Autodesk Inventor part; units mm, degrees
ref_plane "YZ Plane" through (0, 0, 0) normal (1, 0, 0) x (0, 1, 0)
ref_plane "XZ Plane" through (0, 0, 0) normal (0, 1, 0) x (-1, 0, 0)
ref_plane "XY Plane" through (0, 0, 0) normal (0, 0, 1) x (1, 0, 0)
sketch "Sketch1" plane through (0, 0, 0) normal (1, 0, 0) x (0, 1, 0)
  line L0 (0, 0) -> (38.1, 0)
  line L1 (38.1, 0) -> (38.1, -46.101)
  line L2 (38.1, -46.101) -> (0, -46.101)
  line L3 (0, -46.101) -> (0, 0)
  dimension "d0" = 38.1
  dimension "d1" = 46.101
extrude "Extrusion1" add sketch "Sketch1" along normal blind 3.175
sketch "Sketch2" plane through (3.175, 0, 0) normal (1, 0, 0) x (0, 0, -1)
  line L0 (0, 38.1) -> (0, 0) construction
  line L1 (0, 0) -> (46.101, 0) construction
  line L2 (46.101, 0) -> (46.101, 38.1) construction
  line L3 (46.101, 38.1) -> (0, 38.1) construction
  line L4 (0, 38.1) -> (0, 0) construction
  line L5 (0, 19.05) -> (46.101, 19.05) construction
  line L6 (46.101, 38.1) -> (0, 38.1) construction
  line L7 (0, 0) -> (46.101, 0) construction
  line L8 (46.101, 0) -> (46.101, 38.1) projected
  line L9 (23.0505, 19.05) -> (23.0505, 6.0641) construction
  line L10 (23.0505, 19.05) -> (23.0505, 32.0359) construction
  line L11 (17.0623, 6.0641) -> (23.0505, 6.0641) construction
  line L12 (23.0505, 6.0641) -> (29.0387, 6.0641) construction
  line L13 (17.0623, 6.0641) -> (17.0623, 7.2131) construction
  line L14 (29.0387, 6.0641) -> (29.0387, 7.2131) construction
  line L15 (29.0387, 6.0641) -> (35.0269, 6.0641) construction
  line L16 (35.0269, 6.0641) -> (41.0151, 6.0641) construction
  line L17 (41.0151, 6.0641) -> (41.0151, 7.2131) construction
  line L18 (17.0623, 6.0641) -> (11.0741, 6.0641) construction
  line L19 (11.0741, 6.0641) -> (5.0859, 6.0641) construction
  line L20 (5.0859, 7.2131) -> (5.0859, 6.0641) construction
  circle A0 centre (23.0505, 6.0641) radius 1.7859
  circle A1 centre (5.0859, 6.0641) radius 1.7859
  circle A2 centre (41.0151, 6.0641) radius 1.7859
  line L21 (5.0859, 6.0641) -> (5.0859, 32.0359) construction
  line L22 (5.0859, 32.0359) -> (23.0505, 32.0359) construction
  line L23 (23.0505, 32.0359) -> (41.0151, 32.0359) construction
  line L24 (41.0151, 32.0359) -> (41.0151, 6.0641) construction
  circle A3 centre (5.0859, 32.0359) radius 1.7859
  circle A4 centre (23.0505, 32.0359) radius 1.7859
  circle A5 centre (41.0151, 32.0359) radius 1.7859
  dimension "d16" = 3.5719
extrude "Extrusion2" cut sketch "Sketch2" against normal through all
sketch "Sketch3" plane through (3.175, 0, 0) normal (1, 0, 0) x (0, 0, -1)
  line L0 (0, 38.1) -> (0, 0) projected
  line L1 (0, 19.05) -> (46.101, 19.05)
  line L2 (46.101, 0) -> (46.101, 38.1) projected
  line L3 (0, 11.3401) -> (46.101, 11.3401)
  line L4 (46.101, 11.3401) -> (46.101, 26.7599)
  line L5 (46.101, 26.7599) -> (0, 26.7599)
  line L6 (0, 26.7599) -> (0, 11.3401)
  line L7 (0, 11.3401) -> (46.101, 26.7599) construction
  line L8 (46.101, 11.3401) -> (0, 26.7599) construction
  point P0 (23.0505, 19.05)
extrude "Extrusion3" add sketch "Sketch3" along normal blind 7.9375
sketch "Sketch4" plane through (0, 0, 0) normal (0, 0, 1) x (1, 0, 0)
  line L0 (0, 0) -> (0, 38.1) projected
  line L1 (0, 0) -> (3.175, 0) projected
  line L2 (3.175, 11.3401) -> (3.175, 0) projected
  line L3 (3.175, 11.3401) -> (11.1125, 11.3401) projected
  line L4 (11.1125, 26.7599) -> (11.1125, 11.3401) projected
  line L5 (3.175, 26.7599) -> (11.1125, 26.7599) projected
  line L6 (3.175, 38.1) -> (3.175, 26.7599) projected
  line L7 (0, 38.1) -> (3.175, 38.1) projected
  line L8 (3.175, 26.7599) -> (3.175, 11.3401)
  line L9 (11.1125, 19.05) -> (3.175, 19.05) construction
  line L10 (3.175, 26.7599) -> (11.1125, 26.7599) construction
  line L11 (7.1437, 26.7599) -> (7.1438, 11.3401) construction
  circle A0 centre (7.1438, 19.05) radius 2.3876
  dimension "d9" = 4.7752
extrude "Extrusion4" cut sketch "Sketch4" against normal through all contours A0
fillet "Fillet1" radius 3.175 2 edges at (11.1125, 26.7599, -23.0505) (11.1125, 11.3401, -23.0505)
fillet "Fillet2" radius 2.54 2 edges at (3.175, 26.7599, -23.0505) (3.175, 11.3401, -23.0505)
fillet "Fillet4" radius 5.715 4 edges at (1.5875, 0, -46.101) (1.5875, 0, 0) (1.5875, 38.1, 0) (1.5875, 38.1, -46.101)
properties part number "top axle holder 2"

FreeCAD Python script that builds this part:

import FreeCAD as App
import Part
import Sketcher
Q = App.Units.Quantity


def edges_at(feature, points):
    """Names of the edges that pass closest to the given points."""
    edges = feature.Shape.Edges
    near = lambda p: min(range(len(edges)), key=lambda i: edges[i].distToShape(Part.Vertex(*p))[0])
    return sorted({f"Edge{near(p) + 1}" for p in points})


def add_polygon(sketch, points):
    """Adds a closed chain of lines whose ends are joined by coincident constraints."""
    first, n = sketch.GeometryCount, len(points)
    for a, b in zip(points, points[1:] + points[:1]):
        sketch.addGeometry(Part.LineSegment(App.Vector(*a, 0), App.Vector(*b, 0)), False)
    for i in range(n):
        sketch.addConstraint(Sketcher.Constraint("Coincident", first + i, 2, first + (i + 1) % n, 1))

doc = App.newDocument("Part")
body = doc.addObject("PartDesign::Body", "Body")

sketch1 = doc.addObject("Sketcher::SketchObject", "Sketch")
body.addObject(sketch1)
sketch1.AttachmentSupport = (doc.YZ_Plane, [""])
sketch1.MapMode = "FlatFace"
add_polygon(sketch1, [(38, 0), (0, 0), (0, -46), (38, -46)])
sketch1.addConstraint(Sketcher.Constraint("Horizontal", 0))
sketch1.addConstraint(Sketcher.Constraint("Vertical", 1))
sketch1.addConstraint(Sketcher.Constraint("Horizontal", 2))
sketch1.addConstraint(Sketcher.Constraint("Vertical", 3))
sketch1.addConstraint(Sketcher.Constraint("Coincident", 0, 2, -1, 1))
sketch1.addConstraint(Sketcher.Constraint("DistanceX", 0, 2, 0, 1, Q("1.5 in")))
sketch1.addConstraint(Sketcher.Constraint("DistanceY", 1, 2, 1, 1, Q("1.815 in")))
pad1 = doc.addObject("PartDesign::Pad", "Pad")
body.addObject(pad1)
pad1.Profile = sketch1
pad1.Length = Q("0.125 in")

sketch2 = doc.addObject("Sketcher::SketchObject", "Sketch001")
body.addObject(sketch2)
sketch2.AttachmentSupport = (doc.YZ_Plane, [""])
sketch2.MapMode = "FlatFace"
sketch2.AttachmentOffset = App.Placement(App.Vector(0, 0, 0.125 * 25.4), App.Rotation())
sketch2.addGeometry(Part.Circle(App.Vector(6.1, -23.1, 0), App.Vector(0, 0, 1), 1.8), False)
sketch2.addGeometry(Part.Circle(App.Vector(6.1, -5.1, 0), App.Vector(0, 0, 1), 1.8), False)
sketch2.addGeometry(Part.Circle(App.Vector(6.1, -41, 0), App.Vector(0, 0, 1), 1.8), False)
sketch2.addGeometry(Part.Circle(App.Vector(32, -5.1, 0), App.Vector(0, 0, 1), 1.8), False)
sketch2.addGeometry(Part.Circle(App.Vector(32, -23.1, 0), App.Vector(0, 0, 1), 1.8), False)
sketch2.addGeometry(Part.Circle(App.Vector(32, -41, 0), App.Vector(0, 0, 1), 1.8), False)
sketch2.addConstraint(Sketcher.Constraint("Equal", 0, 1))
sketch2.addConstraint(Sketcher.Constraint("Equal", 1, 2))
sketch2.addConstraint(Sketcher.Constraint("Equal", 2, 3))
sketch2.addConstraint(Sketcher.Constraint("Equal", 3, 4))
sketch2.addConstraint(Sketcher.Constraint("Equal", 4, 5))
sketch2.addConstraint(Sketcher.Constraint("Horizontal", 1, 3, 3, 3))
sketch2.addConstraint(Sketcher.Constraint("Horizontal", 0, 3, 4, 3))
sketch2.addConstraint(Sketcher.Constraint("Horizontal", 2, 3, 5, 3))
sketch2.addConstraint(Sketcher.Constraint("Vertical", 0, 3, 1, 3))
sketch2.addConstraint(Sketcher.Constraint("Vertical", 1, 3, 2, 3))
sketch2.addConstraint(Sketcher.Constraint("Vertical", 3, 3, 4, 3))
sketch2.addConstraint(Sketcher.Constraint("Vertical", 4, 3, 5, 3))
sketch2.addConstraint(Sketcher.Constraint("Diameter", 0, Q("0.140622 in")))
sketch2.addConstraint(Sketcher.Constraint("DistanceY", 0, 3, -1, 1, Q("0.9075 in")))
sketch2.addConstraint(Sketcher.Constraint("DistanceX", 1, 3, 3, 3, Q("1.0225 in")))
sketch2.addConstraint(Sketcher.Constraint("DistanceX", -1, 1, 0, 3, 6.064))
sketch2.addConstraint(Sketcher.Constraint("DistanceY", 1, 3, -1, 1, 5.086))
sketch2.addConstraint(Sketcher.Constraint("DistanceY", 2, 3, -1, 1, 41.015))
pocket1 = doc.addObject("PartDesign::Pocket", "Pocket")
body.addObject(pocket1)
pocket1.Profile = sketch2
pocket1.Type = "ThroughAll"

sketch3 = doc.addObject("Sketcher::SketchObject", "Sketch002")
body.addObject(sketch3)
sketch3.AttachmentSupport = (doc.YZ_Plane, [""])
sketch3.MapMode = "FlatFace"
sketch3.AttachmentOffset = App.Placement(App.Vector(0, 0, 0.125 * 25.4), App.Rotation())
add_polygon(sketch3, [(27, -46), (27, 0), (11, 0), (11, -46)])
sketch3.addConstraint(Sketcher.Constraint("Vertical", 0))
sketch3.addConstraint(Sketcher.Constraint("Horizontal", 1))
sketch3.addConstraint(Sketcher.Constraint("Vertical", 2))
sketch3.addConstraint(Sketcher.Constraint("Horizontal", 3))
sketch3.addConstraint(Sketcher.Constraint("PointOnObject", 0, 2, -1))
sketch3.addConstraint(Sketcher.Constraint("DistanceY", 0, 1, 0, 2, Q("1.815 in")))
sketch3.addConstraint(Sketcher.Constraint("DistanceX", 1, 2, 1, 1, 15.4198))
sketch3.addConstraint(Sketcher.Constraint("DistanceX", -1, 1, 0, 2, 26.76))
pad2 = doc.addObject("PartDesign::Pad", "Pad001")
body.addObject(pad2)
pad2.Profile = sketch3
pad2.Length = Q("0.3125 in")

sketch4 = doc.addObject("Sketcher::SketchObject", "Sketch003")
body.addObject(sketch4)
sketch4.AttachmentSupport = (doc.XY_Plane, [""])
sketch4.MapMode = "FlatFace"
sketch4.addGeometry(Part.Circle(App.Vector(7.1, 19.1, 0), App.Vector(0, 0, 1), 2.4), False)
sketch4.addConstraint(Sketcher.Constraint("Diameter", 0, Q("0.188 in")))
sketch4.addConstraint(Sketcher.Constraint("DistanceY", -1, 1, 0, 3, Q("0.75 in")))
sketch4.addConstraint(Sketcher.Constraint("DistanceX", -1, 1, 0, 3, Q("0.281252 in")))
pocket2 = doc.addObject("PartDesign::Pocket", "Pocket001")
body.addObject(pocket2)
pocket2.Profile = sketch4
pocket2.Type = "ThroughAll"
doc.recompute()

fillet = doc.addObject("PartDesign::Fillet", "Fillet")
body.addObject(fillet)
fillet.Base = (pocket2, edges_at(pocket2, [(11.113, 26.76, -23.05), (11.113, 11.34, -23.05)]))
fillet.Radius = Q("0.125 in")
doc.recompute()

fillet2 = doc.addObject("PartDesign::Fillet", "Fillet001")
body.addObject(fillet2)
fillet2.Base = (fillet, edges_at(fillet, [(3.175, 26.76, -23.05), (3.175, 11.34, -23.05)]))
fillet2.Radius = Q("0.1 in")
doc.recompute()

fillet3 = doc.addObject("PartDesign::Fillet", "Fillet002")
body.addObject(fillet3)
fillet3.Base = (fillet2, edges_at(fillet2, [
    (1.587, 0, -46.101),
    (1.587, 0, 0),
    (1.587, 38.1, 0),
    (1.587, 38.1, -46.101),
]))
fillet3.Radius = Q("0.225 in")

doc.recompute()
